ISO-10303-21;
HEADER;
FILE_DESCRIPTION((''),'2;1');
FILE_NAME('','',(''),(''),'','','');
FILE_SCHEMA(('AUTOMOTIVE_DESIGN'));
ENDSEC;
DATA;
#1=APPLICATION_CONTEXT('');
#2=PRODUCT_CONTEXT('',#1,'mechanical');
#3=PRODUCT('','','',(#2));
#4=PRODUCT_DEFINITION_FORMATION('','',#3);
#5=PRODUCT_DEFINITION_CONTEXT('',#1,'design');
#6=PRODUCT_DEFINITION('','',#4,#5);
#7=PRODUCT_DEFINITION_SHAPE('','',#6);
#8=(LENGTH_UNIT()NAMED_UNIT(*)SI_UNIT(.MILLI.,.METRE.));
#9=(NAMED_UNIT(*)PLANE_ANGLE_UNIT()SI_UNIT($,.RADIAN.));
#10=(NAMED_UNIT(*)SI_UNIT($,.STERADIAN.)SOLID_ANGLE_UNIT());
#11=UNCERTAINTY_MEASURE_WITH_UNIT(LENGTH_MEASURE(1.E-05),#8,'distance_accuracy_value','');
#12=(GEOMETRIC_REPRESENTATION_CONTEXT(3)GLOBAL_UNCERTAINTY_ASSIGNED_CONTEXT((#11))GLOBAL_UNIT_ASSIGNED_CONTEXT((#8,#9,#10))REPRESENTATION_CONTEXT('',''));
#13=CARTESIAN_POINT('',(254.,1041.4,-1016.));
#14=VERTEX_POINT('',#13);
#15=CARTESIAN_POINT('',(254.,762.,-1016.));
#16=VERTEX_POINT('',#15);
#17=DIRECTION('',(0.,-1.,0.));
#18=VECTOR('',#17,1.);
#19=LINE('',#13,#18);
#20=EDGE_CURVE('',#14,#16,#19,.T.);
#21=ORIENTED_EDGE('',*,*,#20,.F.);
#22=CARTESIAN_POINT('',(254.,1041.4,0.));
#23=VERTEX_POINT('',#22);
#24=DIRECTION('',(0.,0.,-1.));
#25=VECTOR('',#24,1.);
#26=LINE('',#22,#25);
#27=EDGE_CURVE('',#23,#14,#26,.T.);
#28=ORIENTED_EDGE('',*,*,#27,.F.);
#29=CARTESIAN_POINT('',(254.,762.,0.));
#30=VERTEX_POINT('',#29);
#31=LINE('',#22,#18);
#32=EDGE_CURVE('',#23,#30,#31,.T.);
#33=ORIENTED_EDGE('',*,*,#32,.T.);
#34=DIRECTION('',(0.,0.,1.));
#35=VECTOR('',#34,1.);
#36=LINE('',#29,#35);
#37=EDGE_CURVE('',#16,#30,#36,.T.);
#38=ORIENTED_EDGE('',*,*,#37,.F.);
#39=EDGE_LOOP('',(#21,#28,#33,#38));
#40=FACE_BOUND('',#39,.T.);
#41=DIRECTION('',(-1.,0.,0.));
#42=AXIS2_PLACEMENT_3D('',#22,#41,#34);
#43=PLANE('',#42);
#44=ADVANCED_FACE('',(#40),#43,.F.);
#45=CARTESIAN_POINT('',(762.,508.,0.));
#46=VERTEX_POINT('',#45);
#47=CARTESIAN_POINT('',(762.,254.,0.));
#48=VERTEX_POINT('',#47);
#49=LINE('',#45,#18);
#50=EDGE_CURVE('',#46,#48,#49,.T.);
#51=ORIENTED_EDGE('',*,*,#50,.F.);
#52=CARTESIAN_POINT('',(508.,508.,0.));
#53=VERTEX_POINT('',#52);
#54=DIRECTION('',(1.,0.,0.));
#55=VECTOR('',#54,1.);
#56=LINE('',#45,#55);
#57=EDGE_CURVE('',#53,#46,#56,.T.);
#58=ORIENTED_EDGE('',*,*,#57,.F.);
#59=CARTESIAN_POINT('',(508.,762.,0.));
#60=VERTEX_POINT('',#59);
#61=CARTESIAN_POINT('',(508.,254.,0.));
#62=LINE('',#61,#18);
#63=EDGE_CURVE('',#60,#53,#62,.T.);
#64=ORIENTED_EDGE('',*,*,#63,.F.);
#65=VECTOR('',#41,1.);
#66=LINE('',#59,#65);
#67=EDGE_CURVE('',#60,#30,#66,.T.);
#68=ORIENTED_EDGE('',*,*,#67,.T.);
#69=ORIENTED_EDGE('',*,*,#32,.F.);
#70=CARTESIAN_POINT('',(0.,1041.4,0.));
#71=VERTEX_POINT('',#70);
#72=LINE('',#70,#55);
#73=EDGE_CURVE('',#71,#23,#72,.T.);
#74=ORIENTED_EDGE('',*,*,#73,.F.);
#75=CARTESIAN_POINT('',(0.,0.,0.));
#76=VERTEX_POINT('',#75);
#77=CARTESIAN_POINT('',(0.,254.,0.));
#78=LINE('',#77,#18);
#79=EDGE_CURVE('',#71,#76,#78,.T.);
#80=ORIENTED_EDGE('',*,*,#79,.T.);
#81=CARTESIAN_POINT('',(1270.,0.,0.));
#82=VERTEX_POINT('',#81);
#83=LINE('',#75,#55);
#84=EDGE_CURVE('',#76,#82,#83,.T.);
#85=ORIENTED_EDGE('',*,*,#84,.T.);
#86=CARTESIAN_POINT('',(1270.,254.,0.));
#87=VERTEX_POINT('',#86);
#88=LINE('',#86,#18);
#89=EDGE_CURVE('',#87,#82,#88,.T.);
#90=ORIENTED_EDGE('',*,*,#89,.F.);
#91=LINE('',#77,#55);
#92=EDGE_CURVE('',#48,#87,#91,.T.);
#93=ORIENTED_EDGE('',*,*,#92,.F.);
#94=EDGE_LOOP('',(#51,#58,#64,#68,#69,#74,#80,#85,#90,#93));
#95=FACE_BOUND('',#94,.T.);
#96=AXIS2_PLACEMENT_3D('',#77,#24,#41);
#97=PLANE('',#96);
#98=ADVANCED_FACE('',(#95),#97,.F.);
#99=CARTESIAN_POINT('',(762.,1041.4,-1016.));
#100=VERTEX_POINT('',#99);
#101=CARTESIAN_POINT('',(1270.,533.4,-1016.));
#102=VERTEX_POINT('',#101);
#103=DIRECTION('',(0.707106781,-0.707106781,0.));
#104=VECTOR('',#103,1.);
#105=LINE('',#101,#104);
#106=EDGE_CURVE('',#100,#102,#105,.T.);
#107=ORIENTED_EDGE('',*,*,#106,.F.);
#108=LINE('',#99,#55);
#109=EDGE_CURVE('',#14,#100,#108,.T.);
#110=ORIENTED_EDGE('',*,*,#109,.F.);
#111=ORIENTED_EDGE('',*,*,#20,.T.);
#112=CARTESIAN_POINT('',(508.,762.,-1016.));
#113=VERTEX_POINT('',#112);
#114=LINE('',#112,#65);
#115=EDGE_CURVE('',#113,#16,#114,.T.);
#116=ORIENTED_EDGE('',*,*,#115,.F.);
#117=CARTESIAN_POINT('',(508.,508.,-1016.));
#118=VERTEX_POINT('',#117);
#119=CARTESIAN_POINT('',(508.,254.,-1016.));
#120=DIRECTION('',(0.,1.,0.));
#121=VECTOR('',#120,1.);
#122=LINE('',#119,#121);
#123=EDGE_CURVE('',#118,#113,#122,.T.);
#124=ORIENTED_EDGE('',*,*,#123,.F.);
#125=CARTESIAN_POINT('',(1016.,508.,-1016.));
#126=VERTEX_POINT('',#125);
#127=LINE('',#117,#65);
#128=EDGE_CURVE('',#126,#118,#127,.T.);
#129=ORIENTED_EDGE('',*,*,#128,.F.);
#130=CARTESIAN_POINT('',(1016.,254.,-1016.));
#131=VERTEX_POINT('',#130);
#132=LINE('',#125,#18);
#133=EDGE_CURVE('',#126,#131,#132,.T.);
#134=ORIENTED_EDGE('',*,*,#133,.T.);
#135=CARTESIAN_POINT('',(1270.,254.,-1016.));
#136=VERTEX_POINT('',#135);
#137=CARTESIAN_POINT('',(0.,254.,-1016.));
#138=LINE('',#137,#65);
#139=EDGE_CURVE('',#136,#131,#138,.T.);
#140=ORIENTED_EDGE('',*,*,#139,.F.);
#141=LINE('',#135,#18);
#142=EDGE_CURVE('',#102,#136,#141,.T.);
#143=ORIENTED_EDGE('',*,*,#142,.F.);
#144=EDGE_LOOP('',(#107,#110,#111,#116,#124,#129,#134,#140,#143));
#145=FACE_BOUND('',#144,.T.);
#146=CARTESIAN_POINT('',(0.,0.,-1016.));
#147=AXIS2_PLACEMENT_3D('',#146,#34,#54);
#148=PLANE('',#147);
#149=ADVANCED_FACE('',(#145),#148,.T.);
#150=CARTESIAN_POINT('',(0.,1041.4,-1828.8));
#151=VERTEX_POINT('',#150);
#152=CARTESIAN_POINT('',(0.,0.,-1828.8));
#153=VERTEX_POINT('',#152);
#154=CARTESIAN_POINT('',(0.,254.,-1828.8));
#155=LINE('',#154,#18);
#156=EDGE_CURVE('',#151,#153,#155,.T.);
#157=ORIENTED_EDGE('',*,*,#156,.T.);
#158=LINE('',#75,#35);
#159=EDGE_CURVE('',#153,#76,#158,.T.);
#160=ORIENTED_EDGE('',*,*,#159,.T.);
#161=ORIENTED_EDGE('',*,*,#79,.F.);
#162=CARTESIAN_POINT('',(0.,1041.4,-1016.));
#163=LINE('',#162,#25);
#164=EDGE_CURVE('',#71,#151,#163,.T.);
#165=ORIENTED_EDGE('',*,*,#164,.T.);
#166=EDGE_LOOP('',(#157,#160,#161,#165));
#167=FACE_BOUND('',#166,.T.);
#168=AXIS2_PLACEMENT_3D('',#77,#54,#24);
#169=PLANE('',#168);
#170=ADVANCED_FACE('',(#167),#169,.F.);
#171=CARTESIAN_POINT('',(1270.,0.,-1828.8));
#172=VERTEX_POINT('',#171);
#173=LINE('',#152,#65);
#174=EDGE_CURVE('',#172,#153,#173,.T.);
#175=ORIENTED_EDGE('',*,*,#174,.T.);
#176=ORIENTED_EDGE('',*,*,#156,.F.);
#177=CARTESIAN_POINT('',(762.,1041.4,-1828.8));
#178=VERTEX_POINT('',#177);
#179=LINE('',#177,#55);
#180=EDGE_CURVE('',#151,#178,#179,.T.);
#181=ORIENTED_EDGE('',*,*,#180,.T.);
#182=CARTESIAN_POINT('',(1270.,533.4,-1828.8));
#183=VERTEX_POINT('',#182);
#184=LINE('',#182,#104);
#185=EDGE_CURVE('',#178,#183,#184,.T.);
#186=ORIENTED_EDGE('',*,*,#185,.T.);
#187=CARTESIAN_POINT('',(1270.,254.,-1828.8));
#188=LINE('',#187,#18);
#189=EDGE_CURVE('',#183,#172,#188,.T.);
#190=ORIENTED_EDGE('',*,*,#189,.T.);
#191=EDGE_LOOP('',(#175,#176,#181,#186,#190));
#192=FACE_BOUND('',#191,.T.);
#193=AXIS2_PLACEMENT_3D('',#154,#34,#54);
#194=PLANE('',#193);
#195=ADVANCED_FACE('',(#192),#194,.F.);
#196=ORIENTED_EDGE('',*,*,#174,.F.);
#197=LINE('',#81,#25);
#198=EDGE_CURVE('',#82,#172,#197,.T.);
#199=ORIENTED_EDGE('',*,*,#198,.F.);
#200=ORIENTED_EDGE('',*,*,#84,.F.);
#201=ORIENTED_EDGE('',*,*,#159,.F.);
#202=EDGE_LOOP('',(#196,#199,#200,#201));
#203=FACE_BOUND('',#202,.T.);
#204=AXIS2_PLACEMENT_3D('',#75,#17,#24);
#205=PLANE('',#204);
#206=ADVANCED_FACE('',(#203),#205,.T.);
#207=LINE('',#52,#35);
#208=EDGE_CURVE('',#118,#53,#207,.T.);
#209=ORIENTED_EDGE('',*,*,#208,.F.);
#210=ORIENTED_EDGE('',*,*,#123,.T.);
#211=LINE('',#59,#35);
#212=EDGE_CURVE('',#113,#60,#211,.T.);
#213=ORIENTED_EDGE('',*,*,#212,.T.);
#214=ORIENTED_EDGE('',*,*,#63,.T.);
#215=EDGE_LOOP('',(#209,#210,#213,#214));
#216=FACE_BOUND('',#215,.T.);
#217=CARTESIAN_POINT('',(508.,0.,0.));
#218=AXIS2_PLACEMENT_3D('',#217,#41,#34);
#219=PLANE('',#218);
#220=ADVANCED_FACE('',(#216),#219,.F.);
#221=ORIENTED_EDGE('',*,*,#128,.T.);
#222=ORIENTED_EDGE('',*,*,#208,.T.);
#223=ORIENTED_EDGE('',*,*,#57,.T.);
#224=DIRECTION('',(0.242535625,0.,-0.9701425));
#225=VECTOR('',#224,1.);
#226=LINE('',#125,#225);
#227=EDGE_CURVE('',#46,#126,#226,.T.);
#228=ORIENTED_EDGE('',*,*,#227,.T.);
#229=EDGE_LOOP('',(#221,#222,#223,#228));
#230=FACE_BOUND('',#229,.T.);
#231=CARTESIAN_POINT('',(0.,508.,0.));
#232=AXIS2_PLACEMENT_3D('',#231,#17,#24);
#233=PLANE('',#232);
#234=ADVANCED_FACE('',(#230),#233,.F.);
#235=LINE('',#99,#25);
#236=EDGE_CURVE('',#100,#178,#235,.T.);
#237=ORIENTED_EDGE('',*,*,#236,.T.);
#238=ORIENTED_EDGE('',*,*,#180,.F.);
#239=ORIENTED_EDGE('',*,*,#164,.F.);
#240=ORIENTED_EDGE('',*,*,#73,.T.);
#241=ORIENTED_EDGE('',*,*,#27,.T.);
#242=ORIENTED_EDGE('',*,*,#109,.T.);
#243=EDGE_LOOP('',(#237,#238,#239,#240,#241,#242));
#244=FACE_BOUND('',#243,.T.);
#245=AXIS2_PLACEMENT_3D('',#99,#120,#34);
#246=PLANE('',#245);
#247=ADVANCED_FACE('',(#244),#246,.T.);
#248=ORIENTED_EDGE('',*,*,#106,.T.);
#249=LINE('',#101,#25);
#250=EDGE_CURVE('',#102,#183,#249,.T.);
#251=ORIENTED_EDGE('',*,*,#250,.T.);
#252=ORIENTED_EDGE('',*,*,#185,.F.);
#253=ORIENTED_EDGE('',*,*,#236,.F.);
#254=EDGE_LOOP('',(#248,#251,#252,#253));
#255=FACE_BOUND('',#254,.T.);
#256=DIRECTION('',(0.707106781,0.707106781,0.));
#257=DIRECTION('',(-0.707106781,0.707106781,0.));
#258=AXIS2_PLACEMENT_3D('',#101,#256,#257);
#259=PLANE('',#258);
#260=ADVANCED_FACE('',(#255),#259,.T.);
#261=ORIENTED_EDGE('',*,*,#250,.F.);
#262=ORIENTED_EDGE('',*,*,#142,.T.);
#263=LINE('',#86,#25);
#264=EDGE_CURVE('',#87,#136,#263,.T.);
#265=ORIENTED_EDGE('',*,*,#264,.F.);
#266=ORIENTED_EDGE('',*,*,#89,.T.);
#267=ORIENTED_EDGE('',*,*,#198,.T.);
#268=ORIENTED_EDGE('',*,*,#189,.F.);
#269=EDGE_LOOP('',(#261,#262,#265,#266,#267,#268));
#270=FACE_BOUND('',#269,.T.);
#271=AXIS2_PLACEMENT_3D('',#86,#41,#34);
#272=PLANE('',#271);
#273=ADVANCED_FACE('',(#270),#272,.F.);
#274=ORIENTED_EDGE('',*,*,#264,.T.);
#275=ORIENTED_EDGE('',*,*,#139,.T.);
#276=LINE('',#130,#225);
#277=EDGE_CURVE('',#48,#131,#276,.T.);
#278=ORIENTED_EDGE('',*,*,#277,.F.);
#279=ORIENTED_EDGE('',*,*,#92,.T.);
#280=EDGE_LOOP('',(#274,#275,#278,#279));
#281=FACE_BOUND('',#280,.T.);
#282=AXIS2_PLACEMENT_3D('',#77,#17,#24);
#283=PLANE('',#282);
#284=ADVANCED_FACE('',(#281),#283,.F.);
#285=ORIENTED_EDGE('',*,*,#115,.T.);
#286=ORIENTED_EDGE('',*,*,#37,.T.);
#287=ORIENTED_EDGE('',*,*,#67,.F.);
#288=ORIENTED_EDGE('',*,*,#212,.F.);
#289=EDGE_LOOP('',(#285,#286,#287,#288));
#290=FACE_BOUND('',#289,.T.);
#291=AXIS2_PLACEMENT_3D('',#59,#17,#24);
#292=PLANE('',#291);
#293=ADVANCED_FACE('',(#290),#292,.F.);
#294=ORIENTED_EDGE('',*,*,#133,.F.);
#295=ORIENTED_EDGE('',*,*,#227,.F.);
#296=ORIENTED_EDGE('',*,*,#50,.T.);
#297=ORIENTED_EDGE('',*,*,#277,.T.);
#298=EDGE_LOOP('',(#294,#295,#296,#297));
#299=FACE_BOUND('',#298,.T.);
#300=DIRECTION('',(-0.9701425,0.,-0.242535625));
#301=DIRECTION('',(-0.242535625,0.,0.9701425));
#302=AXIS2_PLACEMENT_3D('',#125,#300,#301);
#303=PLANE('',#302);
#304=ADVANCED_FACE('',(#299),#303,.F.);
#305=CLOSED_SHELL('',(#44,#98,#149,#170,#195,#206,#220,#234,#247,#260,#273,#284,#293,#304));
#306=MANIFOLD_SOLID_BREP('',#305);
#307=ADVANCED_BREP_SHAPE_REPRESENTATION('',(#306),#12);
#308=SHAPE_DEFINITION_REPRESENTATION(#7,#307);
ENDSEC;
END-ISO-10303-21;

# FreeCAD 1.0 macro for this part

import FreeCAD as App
import Part
import Sketcher
from FreeCAD import Vector
Q = App.Units.Quantity


def add_polygon(sketch, points):
    """Adds a closed chain of lines whose ends are joined by coincident constraints."""
    first, n = sketch.GeometryCount, len(points)
    for a, b in zip(points, points[1:] + points[:1]):
        sketch.addGeometry(Part.LineSegment(App.Vector(*a, 0), App.Vector(*b, 0)), False)
    for i in range(n):
        sketch.addConstraint(Sketcher.Constraint("Coincident", first + i, 2, first + (i + 1) % n, 1))

doc = App.newDocument("Part")
params = doc.addObject("Spreadsheet::Sheet", "Params")
for row, (alias, value) in enumerate([
    ("sketch1_width", "50 in"),
    ("sketch1_height", "72 in"),
    ("pad1_length", "10 in"),
    ("sketch2_width", "50 in"),
    ("sketch2_width2", "30 in"),
    ("sketch2_height", "11 in"),
    ("sketch2_height2", "31 in"),
    ("pad2_length", "32 in"),
    ("sketch3_width", "10 in"),
    ("sketch3_height", "40 in"),
    ("pad3_length", "31 in"),
    ("sketch4_width", "20 in"),
    ("sketch4_height", "40 in"),
    ("pad4_length", "10 in"),
    ("sketch5_width", "20 in"),
    ("sketch5_width2", "10 in"),
    ("sketch5_height", "40 in"),
    ("pad5_length", "10 in"),
], start=1):
    params.set(f"A{row}", alias)
    params.set(f"B{row}", "=" + value)
    params.setAlias(f"B{row}", alias)

body = doc.addObject("PartDesign::Body", "Body")

# Sketch on XZ plane
sketch1 = body.newObject("Sketcher::SketchObject", "Sketch")
sketch1.AttachmentSupport = (doc.getObject("XZ_Plane"), [""])
sketch1.MapMode = "FlatFace"
add_polygon(sketch1, [(0, -1828.8), (0, 0), (1270, 0), (1270, -1828.8)])  # lines 0-3
sketch1.addConstraint([
    Sketcher.Constraint("Vertical", 0),
    Sketcher.Constraint("Horizontal", 1),
    Sketcher.Constraint("Vertical", 2),
    Sketcher.Constraint("Horizontal", 3),
    Sketcher.Constraint("Coincident", 0, 2, -1, 1),
    Sketcher.Constraint("DistanceX", 1, 1, 1, 2, Q("50 in")),
    Sketcher.Constraint("DistanceY", 0, 1, 0, 2, Q("72 in")),
])
sketch1.setExpression("Constraints[9]", "Params.sketch1_width")
sketch1.setExpression("Constraints[10]", "Params.sketch1_height")
pad1 = body.newObject("PartDesign::Pad", "Pad")
pad1.Profile = sketch1
pad1.setExpression("Length", "Params.pad1_length")
pad1.Reversed = True

# Sketch on XY plane
sketch2 = body.newObject("Sketcher::SketchObject", "Sketch001")
sketch2.AttachmentSupport = (doc.getObject("XY_Plane"), [""])
sketch2.MapMode = "FlatFace"
sketch2.AttachmentOffset = App.Placement(Vector(0, 0, -72 * 25.4), App.Rotation())
add_polygon(sketch2, [(1270, 533.4), (1270, 254), (0, 254), (0, 1041.4), (762, 1041.4)])  # lines 0-4
sketch2.addConstraint([
    Sketcher.Constraint("Vertical", 0),
    Sketcher.Constraint("Horizontal", 1),
    Sketcher.Constraint("Vertical", 2),
    Sketcher.Constraint("Horizontal", 3),
    Sketcher.Constraint("PointOnObject", 1, 2, -2),
    Sketcher.Constraint("DistanceX", 1, 2, 1, 1, Q("50 in")),
    Sketcher.Constraint("DistanceX", 3, 1, 3, 2, Q("30 in")),
    Sketcher.Constraint("DistanceY", 0, 2, 0, 1, Q("11 in")),
    Sketcher.Constraint("DistanceY", 2, 1, 2, 2, Q("31 in")),
    Sketcher.Constraint("DistanceY", -1, 1, 0, 2, Q("10 in")),
])
sketch2.setExpression("Constraints[10]", "Params.sketch2_width")
sketch2.setExpression("Constraints[11]", "Params.sketch2_width2")
sketch2.setExpression("Constraints[12]", "Params.sketch2_height")
sketch2.setExpression("Constraints[13]", "Params.sketch2_height2")
pad2 = body.newObject("PartDesign::Pad", "Pad001")
pad2.Profile = sketch2
pad2.setExpression("Length", "Params.pad2_length")

# Sketch on XZ plane
sketch3 = body.newObject("Sketcher::SketchObject", "Sketch002")
sketch3.AttachmentSupport = (doc.getObject("XZ_Plane"), [""])
sketch3.MapMode = "FlatFace"
sketch3.AttachmentOffset = App.Placement(Vector(0, 0, -10 * 25.4), App.Rotation())
add_polygon(sketch3, [(0, -1016), (0, 0), (254, 0), (254, -1016)])  # lines 0-3
sketch3.addConstraint([
    Sketcher.Constraint("Vertical", 0),
    Sketcher.Constraint("Horizontal", 1),
    Sketcher.Constraint("Vertical", 2),
    Sketcher.Constraint("Horizontal", 3),
    Sketcher.Constraint("Coincident", 0, 2, -1, 1),
    Sketcher.Constraint("DistanceX", 1, 1, 1, 2, Q("10 in")),
    Sketcher.Constraint("DistanceY", 0, 1, 0, 2, Q("40 in")),
])
sketch3.setExpression("Constraints[9]", "Params.sketch3_width")
sketch3.setExpression("Constraints[10]", "Params.sketch3_height")
pad3 = body.newObject("PartDesign::Pad", "Pad002")
pad3.Profile = sketch3
pad3.setExpression("Length", "Params.pad3_length")
pad3.Reversed = True

# Sketch on YZ plane
sketch4 = body.newObject("Sketcher::SketchObject", "Sketch003")
sketch4.AttachmentSupport = (doc.getObject("YZ_Plane"), [""])
sketch4.MapMode = "FlatFace"
sketch4.AttachmentOffset = App.Placement(Vector(0, 0, 10 * 25.4), App.Rotation())
add_polygon(sketch4, [(762, 0), (254, 0), (254, -1016), (762, -1016)])  # lines 0-3
sketch4.addConstraint([
    Sketcher.Constraint("Horizontal", 0),
    Sketcher.Constraint("Vertical", 1),
    Sketcher.Constraint("Horizontal", 2),
    Sketcher.Constraint("Vertical", 3),
    Sketcher.Constraint("PointOnObject", 0, 2, -1),
    Sketcher.Constraint("DistanceX", 0, 2, 0, 1, Q("20 in")),
    Sketcher.Constraint("DistanceY", 1, 2, 1, 1, Q("40 in")),
    Sketcher.Constraint("DistanceX", -1, 1, 0, 2, Q("10 in")),
])
sketch4.setExpression("Constraints[9]", "Params.sketch4_width")
sketch4.setExpression("Constraints[10]", "Params.sketch4_height")
pad4 = body.newObject("PartDesign::Pad", "Pad003")
pad4.Profile = sketch4
pad4.setExpression("Length", "Params.pad4_length")

# Sketch on XZ plane
sketch5 = body.newObject("Sketcher::SketchObject", "Sketch004")
sketch5.AttachmentSupport = (doc.getObject("XZ_Plane"), [""])
sketch5.MapMode = "FlatFace"
sketch5.AttachmentOffset = App.Placement(Vector(0, 0, -10 * 25.4), App.Rotation())
add_polygon(sketch5, [(1016, -1016), (508, -1016), (508, 0), (762, 0)])  # lines 0-3
sketch5.addConstraint([
    Sketcher.Constraint("Horizontal", 0),
    Sketcher.Constraint("Vertical", 1),
    Sketcher.Constraint("Horizontal", 2),
    Sketcher.Constraint("PointOnObject", 1, 2, -1),
    Sketcher.Constraint("DistanceX", 0, 2, 0, 1, Q("20 in")),
    Sketcher.Constraint("DistanceX", 2, 1, 2, 2, Q("10 in")),
    Sketcher.Constraint("DistanceY", 1, 1, 1, 2, Q("40 in")),
    Sketcher.Constraint("DistanceX", -1, 1, 0, 2, Q("20 in")),
])
sketch5.setExpression("Constraints[8]", "Params.sketch5_width")
sketch5.setExpression("Constraints[9]", "Params.sketch5_width2")
sketch5.setExpression("Constraints[10]", "Params.sketch5_height")
pad5 = body.newObject("PartDesign::Pad", "Pad004")
pad5.Profile = sketch5
pad5.setExpression("Length", "Params.pad5_length")
pad5.Reversed = True

doc.recompute()
